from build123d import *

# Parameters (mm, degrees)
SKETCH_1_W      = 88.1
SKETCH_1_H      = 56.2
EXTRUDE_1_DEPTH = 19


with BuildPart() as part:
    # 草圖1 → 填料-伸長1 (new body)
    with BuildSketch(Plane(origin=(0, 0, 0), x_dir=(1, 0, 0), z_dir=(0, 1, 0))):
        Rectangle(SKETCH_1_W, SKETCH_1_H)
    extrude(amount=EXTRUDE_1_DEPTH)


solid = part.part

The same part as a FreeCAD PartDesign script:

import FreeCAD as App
import Part
import Sketcher

V = App.Vector


def add_polygon(sketch, points):
    """Adds a closed chain of lines whose ends are joined by coincident constraints."""
    first, n = sketch.GeometryCount, len(points)
    for a, b in zip(points, points[1:] + points[:1]):
        sketch.addGeometry(Part.LineSegment(App.Vector(*a, 0), App.Vector(*b, 0)), False)
    for i in range(n):
        sketch.addConstraint(Sketcher.Constraint("Coincident", first + i, 2, first + (i + 1) % n, 1))

doc = App.newDocument("Part")
body = doc.addObject("PartDesign::Body", "Body")

sketch1 = doc.addObject("Sketcher::SketchObject", "Sketch")
body.addObject(sketch1)
sketch1.AttachmentSupport = (doc.XZ_Plane, [""])
sketch1.MapMode = "FlatFace"
add_polygon(sketch1, [(-44, -28), (-44, 28), (44, 28), (44, -28)])
sketch1.addConstraint(Sketcher.Constraint("Vertical", 0))
sketch1.addConstraint(Sketcher.Constraint("Horizontal", 1))
sketch1.addConstraint(Sketcher.Constraint("Vertical", 2))
sketch1.addConstraint(Sketcher.Constraint("Horizontal", 3))
sketch1.addConstraint(Sketcher.Constraint("Symmetric", 0, 2, 2, 2, -1, 1))
sketch1.addConstraint(Sketcher.Constraint("DistanceX", 1, 1, 1, 2, 88.1))
sketch1.addConstraint(Sketcher.Constraint("DistanceY", 0, 1, 0, 2, 56.2))
pad1 = doc.addObject("PartDesign::Pad", "Pad")
body.addObject(pad1)
pad1.Profile = sketch1
pad1.Length = 19
pad1.Reversed = True

doc.recompute()
